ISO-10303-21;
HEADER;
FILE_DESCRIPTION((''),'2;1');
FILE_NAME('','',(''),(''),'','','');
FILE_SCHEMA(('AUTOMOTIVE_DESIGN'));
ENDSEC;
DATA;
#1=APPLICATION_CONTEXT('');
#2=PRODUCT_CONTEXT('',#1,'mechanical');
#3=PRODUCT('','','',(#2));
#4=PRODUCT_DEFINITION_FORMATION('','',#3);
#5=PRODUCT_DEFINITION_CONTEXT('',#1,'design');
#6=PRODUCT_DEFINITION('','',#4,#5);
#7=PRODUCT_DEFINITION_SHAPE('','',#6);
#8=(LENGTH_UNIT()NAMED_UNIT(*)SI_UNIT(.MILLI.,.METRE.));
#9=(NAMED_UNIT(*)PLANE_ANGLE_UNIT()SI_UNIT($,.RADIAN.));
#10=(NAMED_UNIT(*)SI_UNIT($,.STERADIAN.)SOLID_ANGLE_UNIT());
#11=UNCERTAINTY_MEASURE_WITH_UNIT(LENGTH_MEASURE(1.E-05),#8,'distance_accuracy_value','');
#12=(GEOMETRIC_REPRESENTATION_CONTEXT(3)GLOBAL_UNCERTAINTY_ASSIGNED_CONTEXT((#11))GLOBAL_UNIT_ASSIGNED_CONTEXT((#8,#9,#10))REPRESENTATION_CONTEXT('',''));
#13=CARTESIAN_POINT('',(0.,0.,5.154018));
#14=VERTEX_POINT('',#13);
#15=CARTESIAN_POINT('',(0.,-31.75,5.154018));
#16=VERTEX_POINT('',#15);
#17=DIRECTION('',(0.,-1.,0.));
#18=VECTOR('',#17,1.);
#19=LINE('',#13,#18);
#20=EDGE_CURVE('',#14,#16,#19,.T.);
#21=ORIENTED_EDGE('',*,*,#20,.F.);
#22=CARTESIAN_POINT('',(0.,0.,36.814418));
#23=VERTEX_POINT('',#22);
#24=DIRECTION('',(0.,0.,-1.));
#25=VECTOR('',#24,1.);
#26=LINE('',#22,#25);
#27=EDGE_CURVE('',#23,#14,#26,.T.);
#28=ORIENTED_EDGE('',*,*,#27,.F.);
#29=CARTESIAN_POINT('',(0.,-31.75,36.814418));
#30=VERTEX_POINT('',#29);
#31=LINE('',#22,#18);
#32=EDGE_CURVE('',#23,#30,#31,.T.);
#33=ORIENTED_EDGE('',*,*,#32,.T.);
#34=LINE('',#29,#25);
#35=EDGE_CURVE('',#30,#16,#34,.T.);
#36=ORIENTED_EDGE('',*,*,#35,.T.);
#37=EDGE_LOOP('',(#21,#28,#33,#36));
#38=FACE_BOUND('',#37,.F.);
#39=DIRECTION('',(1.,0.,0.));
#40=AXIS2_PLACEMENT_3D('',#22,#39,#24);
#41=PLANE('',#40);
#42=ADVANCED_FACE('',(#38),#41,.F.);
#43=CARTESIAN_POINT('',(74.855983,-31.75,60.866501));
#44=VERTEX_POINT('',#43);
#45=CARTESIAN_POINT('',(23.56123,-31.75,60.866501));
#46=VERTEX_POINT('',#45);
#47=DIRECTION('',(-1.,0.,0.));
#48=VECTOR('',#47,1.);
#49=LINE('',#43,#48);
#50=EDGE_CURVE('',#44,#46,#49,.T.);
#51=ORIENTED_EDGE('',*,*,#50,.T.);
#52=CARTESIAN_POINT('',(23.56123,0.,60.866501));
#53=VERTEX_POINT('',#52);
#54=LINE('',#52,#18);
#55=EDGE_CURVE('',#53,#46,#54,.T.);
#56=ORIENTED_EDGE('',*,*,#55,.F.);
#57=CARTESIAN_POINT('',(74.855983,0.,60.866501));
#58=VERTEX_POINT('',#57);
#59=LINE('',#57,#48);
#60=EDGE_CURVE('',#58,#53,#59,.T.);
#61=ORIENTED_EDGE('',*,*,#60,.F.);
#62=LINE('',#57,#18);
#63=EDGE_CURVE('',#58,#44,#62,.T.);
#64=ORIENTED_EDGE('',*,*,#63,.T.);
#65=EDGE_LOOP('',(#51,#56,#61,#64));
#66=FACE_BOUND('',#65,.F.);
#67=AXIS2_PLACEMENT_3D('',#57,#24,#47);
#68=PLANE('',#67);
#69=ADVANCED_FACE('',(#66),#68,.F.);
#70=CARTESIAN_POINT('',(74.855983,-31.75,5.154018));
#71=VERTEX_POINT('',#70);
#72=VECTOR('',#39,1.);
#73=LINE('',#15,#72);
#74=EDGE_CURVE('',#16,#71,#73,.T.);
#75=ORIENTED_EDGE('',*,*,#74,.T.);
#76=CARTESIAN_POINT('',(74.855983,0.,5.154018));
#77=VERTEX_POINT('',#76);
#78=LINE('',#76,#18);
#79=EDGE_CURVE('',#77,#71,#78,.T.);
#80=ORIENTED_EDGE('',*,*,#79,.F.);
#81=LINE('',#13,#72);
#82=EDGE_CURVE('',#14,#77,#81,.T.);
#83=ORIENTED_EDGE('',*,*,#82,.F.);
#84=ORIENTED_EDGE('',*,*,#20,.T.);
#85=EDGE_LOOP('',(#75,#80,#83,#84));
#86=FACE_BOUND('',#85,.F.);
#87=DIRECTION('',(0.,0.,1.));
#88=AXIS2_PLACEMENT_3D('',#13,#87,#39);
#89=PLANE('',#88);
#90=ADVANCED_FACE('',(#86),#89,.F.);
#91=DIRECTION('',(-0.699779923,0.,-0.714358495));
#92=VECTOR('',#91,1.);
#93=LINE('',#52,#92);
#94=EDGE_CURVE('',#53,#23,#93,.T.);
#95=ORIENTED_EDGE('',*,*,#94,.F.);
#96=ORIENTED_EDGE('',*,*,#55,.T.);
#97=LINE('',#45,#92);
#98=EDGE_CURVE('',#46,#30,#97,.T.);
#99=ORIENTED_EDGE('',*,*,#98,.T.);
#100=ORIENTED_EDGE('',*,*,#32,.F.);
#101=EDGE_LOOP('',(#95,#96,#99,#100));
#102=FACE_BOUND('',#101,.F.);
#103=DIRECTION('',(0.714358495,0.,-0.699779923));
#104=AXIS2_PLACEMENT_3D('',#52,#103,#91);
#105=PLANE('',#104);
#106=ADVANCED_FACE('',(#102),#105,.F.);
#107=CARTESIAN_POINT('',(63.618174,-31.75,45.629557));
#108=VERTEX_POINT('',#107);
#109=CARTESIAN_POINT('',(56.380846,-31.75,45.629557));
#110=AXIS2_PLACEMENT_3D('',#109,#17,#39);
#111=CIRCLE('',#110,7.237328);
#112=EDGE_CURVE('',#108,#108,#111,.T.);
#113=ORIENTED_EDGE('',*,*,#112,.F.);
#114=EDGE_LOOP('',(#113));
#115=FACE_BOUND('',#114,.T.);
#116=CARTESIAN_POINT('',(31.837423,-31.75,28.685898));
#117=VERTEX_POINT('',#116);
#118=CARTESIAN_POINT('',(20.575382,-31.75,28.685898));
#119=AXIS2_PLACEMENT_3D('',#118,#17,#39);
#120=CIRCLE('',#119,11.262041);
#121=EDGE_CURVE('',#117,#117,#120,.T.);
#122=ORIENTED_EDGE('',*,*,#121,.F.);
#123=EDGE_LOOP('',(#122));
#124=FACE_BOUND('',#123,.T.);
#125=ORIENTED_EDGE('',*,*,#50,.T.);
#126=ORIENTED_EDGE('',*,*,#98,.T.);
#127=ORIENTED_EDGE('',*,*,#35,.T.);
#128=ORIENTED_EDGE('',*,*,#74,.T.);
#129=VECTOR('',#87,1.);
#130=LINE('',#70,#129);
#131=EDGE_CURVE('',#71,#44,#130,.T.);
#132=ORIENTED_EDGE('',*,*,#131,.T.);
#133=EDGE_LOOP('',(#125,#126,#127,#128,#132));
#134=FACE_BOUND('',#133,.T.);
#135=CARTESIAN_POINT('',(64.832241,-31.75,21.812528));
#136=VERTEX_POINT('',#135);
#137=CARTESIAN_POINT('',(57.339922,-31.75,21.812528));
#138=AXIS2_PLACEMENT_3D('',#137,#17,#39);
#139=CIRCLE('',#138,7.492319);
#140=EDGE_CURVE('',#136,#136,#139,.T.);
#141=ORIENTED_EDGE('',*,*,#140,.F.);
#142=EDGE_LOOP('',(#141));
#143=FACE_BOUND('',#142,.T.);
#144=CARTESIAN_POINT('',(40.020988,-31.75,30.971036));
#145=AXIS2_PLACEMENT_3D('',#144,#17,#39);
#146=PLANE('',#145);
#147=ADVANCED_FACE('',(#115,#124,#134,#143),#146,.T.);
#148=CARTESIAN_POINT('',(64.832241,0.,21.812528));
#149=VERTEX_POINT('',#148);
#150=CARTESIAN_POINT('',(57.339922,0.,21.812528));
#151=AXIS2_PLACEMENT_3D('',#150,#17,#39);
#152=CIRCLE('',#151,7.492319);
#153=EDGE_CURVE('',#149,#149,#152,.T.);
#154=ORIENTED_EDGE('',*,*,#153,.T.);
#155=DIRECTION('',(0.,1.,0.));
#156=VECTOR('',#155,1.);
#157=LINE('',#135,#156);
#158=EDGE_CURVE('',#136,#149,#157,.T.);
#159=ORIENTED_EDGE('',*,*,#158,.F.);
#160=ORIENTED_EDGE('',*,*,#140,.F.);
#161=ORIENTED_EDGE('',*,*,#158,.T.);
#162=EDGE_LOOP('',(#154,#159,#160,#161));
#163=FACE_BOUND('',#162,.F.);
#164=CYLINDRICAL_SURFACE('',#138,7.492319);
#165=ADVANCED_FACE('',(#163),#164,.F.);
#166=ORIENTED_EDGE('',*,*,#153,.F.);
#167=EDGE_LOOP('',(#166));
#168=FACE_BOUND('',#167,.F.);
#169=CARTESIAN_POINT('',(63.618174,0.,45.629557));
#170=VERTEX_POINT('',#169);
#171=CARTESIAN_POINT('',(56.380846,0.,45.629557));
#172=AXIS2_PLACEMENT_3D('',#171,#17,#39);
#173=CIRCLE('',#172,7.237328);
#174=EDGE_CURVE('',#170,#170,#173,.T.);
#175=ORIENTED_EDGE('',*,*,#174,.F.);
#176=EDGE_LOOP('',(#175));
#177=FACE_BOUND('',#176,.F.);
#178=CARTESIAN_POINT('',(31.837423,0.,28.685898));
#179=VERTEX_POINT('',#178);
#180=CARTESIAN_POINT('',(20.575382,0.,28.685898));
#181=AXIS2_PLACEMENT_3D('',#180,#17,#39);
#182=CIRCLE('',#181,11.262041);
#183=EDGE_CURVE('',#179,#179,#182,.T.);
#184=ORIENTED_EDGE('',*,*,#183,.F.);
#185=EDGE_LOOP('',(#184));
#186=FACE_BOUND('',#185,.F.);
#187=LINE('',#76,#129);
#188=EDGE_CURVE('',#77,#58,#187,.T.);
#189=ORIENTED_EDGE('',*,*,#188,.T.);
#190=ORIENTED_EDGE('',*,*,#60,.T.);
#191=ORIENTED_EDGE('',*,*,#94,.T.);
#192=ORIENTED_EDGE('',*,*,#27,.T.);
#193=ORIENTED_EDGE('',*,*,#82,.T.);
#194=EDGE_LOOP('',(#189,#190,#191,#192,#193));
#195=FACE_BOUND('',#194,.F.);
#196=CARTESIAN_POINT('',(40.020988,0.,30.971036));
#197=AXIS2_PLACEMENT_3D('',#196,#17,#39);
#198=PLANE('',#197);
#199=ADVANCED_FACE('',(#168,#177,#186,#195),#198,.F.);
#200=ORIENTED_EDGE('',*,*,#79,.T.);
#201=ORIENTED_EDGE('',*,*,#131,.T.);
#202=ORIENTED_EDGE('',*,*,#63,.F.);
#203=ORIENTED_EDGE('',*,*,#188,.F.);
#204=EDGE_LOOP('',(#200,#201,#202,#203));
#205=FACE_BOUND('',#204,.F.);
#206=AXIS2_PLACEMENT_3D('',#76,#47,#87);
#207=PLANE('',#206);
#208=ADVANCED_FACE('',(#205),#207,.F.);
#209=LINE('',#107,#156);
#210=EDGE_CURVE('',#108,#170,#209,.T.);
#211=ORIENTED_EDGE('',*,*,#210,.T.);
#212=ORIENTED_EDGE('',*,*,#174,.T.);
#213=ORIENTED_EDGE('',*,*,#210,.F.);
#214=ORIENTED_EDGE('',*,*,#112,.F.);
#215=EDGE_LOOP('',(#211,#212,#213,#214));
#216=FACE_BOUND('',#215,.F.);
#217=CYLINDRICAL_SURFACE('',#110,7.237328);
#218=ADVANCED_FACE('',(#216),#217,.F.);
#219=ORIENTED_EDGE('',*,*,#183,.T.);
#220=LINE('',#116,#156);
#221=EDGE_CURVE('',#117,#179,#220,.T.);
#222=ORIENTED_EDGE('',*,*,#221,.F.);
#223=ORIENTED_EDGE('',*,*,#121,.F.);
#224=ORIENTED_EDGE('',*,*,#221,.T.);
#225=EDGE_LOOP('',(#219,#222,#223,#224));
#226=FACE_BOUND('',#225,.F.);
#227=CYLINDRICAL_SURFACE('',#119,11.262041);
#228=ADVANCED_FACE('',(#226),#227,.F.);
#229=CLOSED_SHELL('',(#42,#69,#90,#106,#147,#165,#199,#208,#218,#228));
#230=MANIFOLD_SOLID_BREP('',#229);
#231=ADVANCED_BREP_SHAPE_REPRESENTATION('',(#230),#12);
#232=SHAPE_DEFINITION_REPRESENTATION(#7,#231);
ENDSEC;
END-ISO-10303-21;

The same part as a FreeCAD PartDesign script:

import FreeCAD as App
import Part
import Sketcher
Q = App.Units.Quantity

doc = App.newDocument("Part")
body = doc.addObject("PartDesign::Body", "Body")

sketch1 = body.newObject("Sketcher::SketchObject", "Sketch")
sketch1.AttachmentSupport = (doc.getObject("XZ_Plane"), [""])
sketch1.MapMode = "FlatFace"
sketch1.addGeometry([
    Part.LineSegment(App.Vector(24, 61, 0), App.Vector(0, 37, 0)),
    Part.LineSegment(App.Vector(0, 37, 0), App.Vector(0, 5, 0)),
    Part.LineSegment(App.Vector(0, 5, 0), App.Vector(75, 5, 0)),
    Part.LineSegment(App.Vector(75, 5, 0), App.Vector(75, 61, 0)),
    Part.LineSegment(App.Vector(75, 61, 0), App.Vector(24, 61, 0)),
], False)
sketch1.addConstraint([
    Sketcher.Constraint("Coincident", 0, 2, 1, 1),
    Sketcher.Constraint("Coincident", 1, 2, 2, 1),
    Sketcher.Constraint("Coincident", 2, 2, 3, 1),
    Sketcher.Constraint("Coincident", 3, 2, 4, 1),
    Sketcher.Constraint("Coincident", 4, 2, 0, 1),
    Sketcher.Constraint("Vertical", 1),
    Sketcher.Constraint("Horizontal", 2),
    Sketcher.Constraint("Vertical", 3),
    Sketcher.Constraint("Horizontal", 4),
    Sketcher.Constraint("PointOnObject", 0, 2, -2),
    Sketcher.Constraint("DistanceY", 1, 2, 1, 1, Q("31.6604 mm")),
    Sketcher.Constraint("DistanceY", -1, 1, 3, 2, Q("60.866501 mm")),
    Sketcher.Constraint("DistanceX", 2, 1, 2, 2, Q("74.855983 mm")),
    Sketcher.Constraint("DistanceX", 4, 2, 4, 1, Q("51.294753 mm")),
    Sketcher.Constraint("DistanceY", 3, 1, 3, 2, Q("55.712483 mm")),
])
pad1 = body.newObject("PartDesign::Pad", "Pad")
pad1.Profile = sketch1
pad1.Length = Q("1.25 in")

sketch2 = body.newObject("Sketcher::SketchObject", "Sketch001")
sketch2.AttachmentSupport = (doc.getObject("XZ_Plane"), [""])
sketch2.MapMode = "FlatFace"
sketch2.AttachmentOffset = App.Placement(App.Vector(0, 0, 1.25 * 25.4), App.Rotation())
sketch2.addGeometry([
    Part.Circle(App.Vector(56, 46, 0), App.Vector(0, 0, 1), 7),
    Part.Circle(App.Vector(57, 22, 0), App.Vector(0, 0, 1), 7),
    Part.Circle(App.Vector(21, 29, 0), App.Vector(0, 0, 1), 11),
], False)
sketch2.addConstraint([
    Sketcher.Constraint("Diameter", 2, Q("22.524082 mm")),
    Sketcher.Constraint("Diameter", 0, Q("14.474656 mm")),
    Sketcher.Constraint("Diameter", 1, Q("14.984638 mm")),
    Sketcher.Constraint("DistanceY", -1, 1, 2, 3, Q("28.685898 mm")),
    Sketcher.Constraint("DistanceY", -1, 1, 1, 3, Q("21.812528 mm")),
    Sketcher.Constraint("DistanceY", 1, 3, 0, 3, Q("23.817029 mm")),
    Sketcher.Constraint("DistanceX", 2, 3, 1, 3, Q("36.76454 mm")),
    Sketcher.Constraint("DistanceX", -1, 1, 0, 3, Q("56.380846 mm")),
    Sketcher.Constraint("DistanceX", -1, 1, 1, 3, Q("57.339922 mm")),
])
pocket1 = body.newObject("PartDesign::Pocket", "Pocket")
pocket1.Profile = sketch2
pocket1.Length = Q("3 in")

doc.recompute()
